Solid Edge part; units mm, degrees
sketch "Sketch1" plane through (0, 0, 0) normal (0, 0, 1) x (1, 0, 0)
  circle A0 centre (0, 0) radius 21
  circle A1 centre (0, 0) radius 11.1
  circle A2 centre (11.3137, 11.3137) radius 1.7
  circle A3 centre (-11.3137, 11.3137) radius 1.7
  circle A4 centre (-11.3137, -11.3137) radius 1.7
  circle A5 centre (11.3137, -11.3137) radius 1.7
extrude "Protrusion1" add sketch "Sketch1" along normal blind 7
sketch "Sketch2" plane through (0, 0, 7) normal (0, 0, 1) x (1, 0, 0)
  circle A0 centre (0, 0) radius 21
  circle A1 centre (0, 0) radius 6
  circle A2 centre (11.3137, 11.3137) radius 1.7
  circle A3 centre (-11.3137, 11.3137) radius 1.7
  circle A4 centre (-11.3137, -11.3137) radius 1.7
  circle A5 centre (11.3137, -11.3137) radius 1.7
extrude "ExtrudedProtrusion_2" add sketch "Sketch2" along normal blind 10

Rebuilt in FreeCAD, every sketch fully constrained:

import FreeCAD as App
import Part
import Sketcher

V = App.Vector
Q = App.Units.Quantity

doc = App.newDocument("Part")
body = doc.addObject("PartDesign::Body", "Body")

# Sketch on XY plane
sketch1 = body.newObject("Sketcher::SketchObject", "Sketch")
sketch1.AttachmentSupport = (doc.getObject("XY_Plane"), [""])
sketch1.MapMode = "FlatFace"
sketch1.addGeometry([
    Part.Circle(V(0, 0, 0), V(0, 0, 1), 21),  # 0
    Part.Circle(V(-11.3137, -11.3137, 0), V(0, 0, 1), 1.7),  # 1
    Part.Circle(V(11.3137, -11.3137, 0), V(0, 0, 1), 1.7),  # 2
    Part.Circle(V(-11.3137, 11.3137, 0), V(0, 0, 1), 1.7),  # 3
    Part.Circle(V(0, 0, 0), V(0, 0, 1), 11.1),  # 4
    Part.Circle(V(11.3137, 11.3137, 0), V(0, 0, 1), 1.7),  # 5
], False)
sketch1.addConstraint([
    Sketcher.Constraint("Coincident", 0, 3, -1, 1),
    Sketcher.Constraint("Coincident", 4, 3, -1, 1),
    Sketcher.Constraint("Equal", 1, 2),
    Sketcher.Constraint("Equal", 2, 3),
    Sketcher.Constraint("Equal", 3, 5),
    Sketcher.Constraint("Symmetric", 2, 3, 3, 3, -1, 1),
    Sketcher.Constraint("Symmetric", 1, 3, 5, 3, -1, 1),
    Sketcher.Constraint("Symmetric", 1, 3, 2, 3, -2),
    Sketcher.Constraint("Diameter", 0, Q("42 mm")),
    Sketcher.Constraint("Diameter", 1, Q("3.4 mm")),
    Sketcher.Constraint("Diameter", 4, Q("22.2 mm")),
    Sketcher.Constraint("DistanceX", 1, 3, -1, 1, Q("11.3137 mm")),
    Sketcher.Constraint("DistanceY", 1, 3, -1, 1, Q("11.3137 mm")),
])
pad1 = body.newObject("PartDesign::Pad", "Pad")
pad1.Profile = sketch1
pad1.Length = 7

# Sketch on XY plane
sketch2 = body.newObject("Sketcher::SketchObject", "Sketch001")
sketch2.AttachmentSupport = (doc.getObject("XY_Plane"), [""])
sketch2.MapMode = "FlatFace"
sketch2.AttachmentOffset = App.Placement(V(0, 0, 7), App.Rotation())
sketch2.addGeometry([
    Part.Circle(V(0, 0, 0), V(0, 0, 1), 21),  # 0
    Part.Circle(V(-11.3137, -11.3137, 0), V(0, 0, 1), 1.7),  # 1
    Part.Circle(V(11.3137, -11.3137, 0), V(0, 0, 1), 1.7),  # 2
    Part.Circle(V(-11.3137, 11.3137, 0), V(0, 0, 1), 1.7),  # 3
    Part.Circle(V(0, 0, 0), V(0, 0, 1), 6),  # 4
    Part.Circle(V(11.3137, 11.3137, 0), V(0, 0, 1), 1.7),  # 5
], False)
sketch2.addConstraint([
    Sketcher.Constraint("Coincident", 0, 3, -1, 1),
    Sketcher.Constraint("Coincident", 4, 3, -1, 1),
    Sketcher.Constraint("Equal", 1, 2),
    Sketcher.Constraint("Equal", 2, 3),
    Sketcher.Constraint("Equal", 3, 5),
    Sketcher.Constraint("Symmetric", 2, 3, 3, 3, -1, 1),
    Sketcher.Constraint("Symmetric", 1, 3, 5, 3, -1, 1),
    Sketcher.Constraint("Symmetric", 1, 3, 2, 3, -2),
    Sketcher.Constraint("Diameter", 0, Q("42 mm")),
    Sketcher.Constraint("Diameter", 4, Q("12 mm")),
    Sketcher.Constraint("Diameter", 1, Q("3.4 mm")),
    Sketcher.Constraint("DistanceX", 1, 3, -1, 1, Q("11.3137 mm")),
    Sketcher.Constraint("DistanceY", 1, 3, -1, 1, Q("11.3137 mm")),
])
pad2 = body.newObject("PartDesign::Pad", "Pad001")
pad2.Profile = sketch2
pad2.Length = 10

doc.recompute()
